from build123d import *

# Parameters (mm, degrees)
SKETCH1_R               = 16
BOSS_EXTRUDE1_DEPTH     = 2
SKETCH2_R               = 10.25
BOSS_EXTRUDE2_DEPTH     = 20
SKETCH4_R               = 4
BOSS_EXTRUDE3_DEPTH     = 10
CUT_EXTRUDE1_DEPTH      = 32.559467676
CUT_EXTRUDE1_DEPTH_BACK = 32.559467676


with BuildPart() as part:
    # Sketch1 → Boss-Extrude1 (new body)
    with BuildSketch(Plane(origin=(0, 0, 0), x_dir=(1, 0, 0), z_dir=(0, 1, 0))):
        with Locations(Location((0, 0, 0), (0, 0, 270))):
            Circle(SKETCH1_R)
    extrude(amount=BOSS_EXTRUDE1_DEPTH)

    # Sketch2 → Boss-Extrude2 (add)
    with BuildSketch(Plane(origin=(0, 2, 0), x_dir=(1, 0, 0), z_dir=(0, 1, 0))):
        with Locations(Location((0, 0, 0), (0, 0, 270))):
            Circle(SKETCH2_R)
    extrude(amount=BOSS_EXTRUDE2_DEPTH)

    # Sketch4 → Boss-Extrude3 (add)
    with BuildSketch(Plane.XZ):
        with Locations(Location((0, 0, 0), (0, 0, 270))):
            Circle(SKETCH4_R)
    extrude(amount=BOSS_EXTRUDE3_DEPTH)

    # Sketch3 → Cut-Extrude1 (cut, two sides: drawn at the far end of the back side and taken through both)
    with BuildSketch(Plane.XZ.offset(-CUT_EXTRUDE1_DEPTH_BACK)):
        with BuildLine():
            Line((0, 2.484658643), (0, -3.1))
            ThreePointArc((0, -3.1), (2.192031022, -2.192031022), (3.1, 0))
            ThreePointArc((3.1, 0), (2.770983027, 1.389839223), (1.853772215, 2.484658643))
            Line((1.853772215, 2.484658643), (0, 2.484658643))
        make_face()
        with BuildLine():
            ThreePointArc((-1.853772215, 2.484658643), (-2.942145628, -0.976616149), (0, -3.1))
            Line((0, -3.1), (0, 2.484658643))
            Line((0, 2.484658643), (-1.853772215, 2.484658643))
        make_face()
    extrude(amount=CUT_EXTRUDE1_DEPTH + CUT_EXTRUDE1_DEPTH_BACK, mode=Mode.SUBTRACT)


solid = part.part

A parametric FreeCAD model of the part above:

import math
import FreeCAD as App
import Part
import Sketcher

V = App.Vector
Q = App.Units.Quantity

doc = App.newDocument("Part")
params = doc.addObject("Spreadsheet::Sheet", "Params")
for row, (alias, value) in enumerate([
    ("sketch1_diameter", "32 mm"),
    ("pad1_length", "2 mm"),
    ("sketch2_diameter", "20.5 mm"),
    ("pad2_length", "20 mm"),
    ("sketch3_diameter", "8 mm"),
    ("pad3_length", "10 mm"),
    ("sketch4_radius", "3.1 mm"),
], start=1):
    params.set(f"A{row}", alias)
    params.set(f"B{row}", "=" + value)
    params.setAlias(f"B{row}", alias)

body = doc.addObject("PartDesign::Body", "Body")

# Sketch on XZ plane
sketch1 = doc.addObject("Sketcher::SketchObject", "Sketch")
body.addObject(sketch1)
sketch1.AttachmentSupport = (doc.XZ_Plane, [""])
sketch1.MapMode = "FlatFace"
sketch1.addGeometry(Part.Circle(V(0, 0, 0), V(0, 0, 1), 16), False)
sketch1.addConstraint([
    Sketcher.Constraint("Coincident", 0, 3, -1, 1),
    Sketcher.Constraint("Diameter", 0, Q("32 mm")),
])
sketch1.setExpression("Constraints[1]", "Params.sketch1_diameter")
pad1 = doc.addObject("PartDesign::Pad", "Pad")
body.addObject(pad1)
pad1.Profile = sketch1
pad1.setExpression("Length", "Params.pad1_length")
pad1.Reversed = True

# Sketch on XZ plane
sketch2 = doc.addObject("Sketcher::SketchObject", "Sketch001")
body.addObject(sketch2)
sketch2.AttachmentSupport = (doc.XZ_Plane, [""])
sketch2.MapMode = "FlatFace"
sketch2.AttachmentOffset = App.Placement(V(0, 0, -2), App.Rotation())
sketch2.addGeometry(Part.Circle(V(0, 0, 0), V(0, 0, 1), 10.25), False)
sketch2.addConstraint([
    Sketcher.Constraint("Coincident", 0, 3, -1, 1),
    Sketcher.Constraint("Diameter", 0, Q("20.5 mm")),
])
sketch2.setExpression("Constraints[1]", "Params.sketch2_diameter")
pad2 = doc.addObject("PartDesign::Pad", "Pad001")
body.addObject(pad2)
pad2.Profile = sketch2
pad2.setExpression("Length", "Params.pad2_length")
pad2.Reversed = True

# Sketch on XZ plane
sketch3 = doc.addObject("Sketcher::SketchObject", "Sketch002")
body.addObject(sketch3)
sketch3.AttachmentSupport = (doc.XZ_Plane, [""])
sketch3.MapMode = "FlatFace"
sketch3.addGeometry(Part.Circle(V(0, 0, 0), V(0, 0, 1), 4), False)
sketch3.addConstraint([
    Sketcher.Constraint("Coincident", 0, 3, -1, 1),
    Sketcher.Constraint("Diameter", 0, Q("8 mm")),
])
sketch3.setExpression("Constraints[1]", "Params.sketch3_diameter")
pad3 = doc.addObject("PartDesign::Pad", "Pad002")
body.addObject(pad3)
pad3.Profile = sketch3
pad3.setExpression("Length", "Params.pad3_length")

# Sketch on XZ plane
sketch4 = doc.addObject("Sketcher::SketchObject", "Sketch003")
body.addObject(sketch4)
sketch4.AttachmentSupport = (doc.XZ_Plane, [""])
sketch4.MapMode = "FlatFace"
sketch4.addGeometry([
    Part.ArcOfCircle(Part.Circle(V(0, 0, 0), V(0, 0, 1), 3.1), math.radians(-90), math.radians(0)),
    Part.ArcOfCircle(Part.Circle(V(0, 0, 0), V(0, 0, 1), 3.1), math.radians(0), math.radians(53.273849)),
    Part.LineSegment(V(1.853772, 2.484659, 0), V(-1.853772, 2.484659, 0)),
    Part.ArcOfCircle(Part.Circle(V(0, 0, 0), V(0, 0, 1), 3.1), math.radians(126.726151), math.radians(270)),
], False)
sketch4.addConstraint([
    Sketcher.Constraint("Tangent", 0, 2, 1, 1),
    Sketcher.Constraint("Coincident", 1, 2, 2, 1),
    Sketcher.Constraint("Coincident", 2, 2, 3, 1),
    Sketcher.Constraint("Tangent", 3, 2, 0, 1),
    Sketcher.Constraint("Horizontal", 2),
    Sketcher.Constraint("Coincident", 0, 3, -1, 1),
    Sketcher.Constraint("Equal", 0, 1),
    Sketcher.Constraint("Equal", 1, 3),
    Sketcher.Constraint("PointOnObject", 0, 2, -1),
    Sketcher.Constraint("PointOnObject", 3, 2, -2),
    Sketcher.Constraint("Radius", 0, Q("3.1 mm")),
    Sketcher.Constraint("DistanceX", 2, 2, 2, 1, Q("3.707544 mm")),
])
sketch4.setExpression("Constraints[10]", "Params.sketch4_radius")
pocket1 = doc.addObject("PartDesign::Pocket", "Pocket")
body.addObject(pocket1)
pocket1.Profile = sketch4
pocket1.Type = "ThroughAll"
pocket1.Midplane = True

doc.recompute()
